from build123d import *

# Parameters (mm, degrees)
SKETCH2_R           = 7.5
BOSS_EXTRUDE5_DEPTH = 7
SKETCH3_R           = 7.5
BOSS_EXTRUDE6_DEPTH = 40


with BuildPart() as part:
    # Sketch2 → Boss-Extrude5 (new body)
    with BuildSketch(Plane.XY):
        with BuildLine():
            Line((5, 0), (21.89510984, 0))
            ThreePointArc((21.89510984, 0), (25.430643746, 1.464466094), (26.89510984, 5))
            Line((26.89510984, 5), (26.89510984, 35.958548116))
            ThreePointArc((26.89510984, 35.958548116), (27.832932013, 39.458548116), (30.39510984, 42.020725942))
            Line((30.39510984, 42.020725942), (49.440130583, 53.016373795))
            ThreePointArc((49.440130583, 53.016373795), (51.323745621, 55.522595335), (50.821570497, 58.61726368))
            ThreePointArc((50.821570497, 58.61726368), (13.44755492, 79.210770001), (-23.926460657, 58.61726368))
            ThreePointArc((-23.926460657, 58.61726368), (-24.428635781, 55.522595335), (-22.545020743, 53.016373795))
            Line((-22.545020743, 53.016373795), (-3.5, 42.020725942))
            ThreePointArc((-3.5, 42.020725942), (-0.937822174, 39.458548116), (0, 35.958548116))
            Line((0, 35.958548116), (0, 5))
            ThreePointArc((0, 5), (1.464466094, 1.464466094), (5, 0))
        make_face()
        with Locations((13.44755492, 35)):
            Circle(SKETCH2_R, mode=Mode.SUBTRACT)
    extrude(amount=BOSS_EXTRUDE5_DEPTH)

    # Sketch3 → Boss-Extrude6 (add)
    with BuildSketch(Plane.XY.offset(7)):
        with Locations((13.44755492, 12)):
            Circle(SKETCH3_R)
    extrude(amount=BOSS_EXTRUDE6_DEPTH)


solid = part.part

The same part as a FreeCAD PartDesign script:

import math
import FreeCAD as App
import Part
import Sketcher
Q = App.Units.Quantity

doc = App.newDocument("Part")
body = doc.addObject("PartDesign::Body", "Body")

# Sketch on XY plane
sketch1 = body.newObject("Sketcher::SketchObject", "Sketch")
sketch1.AttachmentSupport = (doc.getObject("XY_Plane"), [""])
sketch1.MapMode = "FlatFace"
sketch1.addGeometry([
    Part.LineSegment(App.Vector(5, 0, 0), App.Vector(21.9, 0, 0)),  # 0
    Part.ArcOfCircle(Part.Circle(App.Vector(21.9, 5, 0), App.Vector(0, 0, 1), 5), math.radians(-90), math.radians(0)),  # 1
    Part.LineSegment(App.Vector(26.9, 5, 0), App.Vector(26.9, 36, 0)),  # 2
    Part.ArcOfCircle(Part.Circle(App.Vector(33.9, 36, 0), App.Vector(0, 0, 1), 7), math.radians(120), math.radians(180)),  # 3
    Part.LineSegment(App.Vector(30.4, 42, 0), App.Vector(49.4, 53, 0)),  # 4
    Part.ArcOfCircle(Part.Circle(App.Vector(47.4, 56.5, 0), App.Vector(0, 0, 1), 4), math.radians(-60), math.radians(32)),  # 5
    Part.ArcOfCircle(Part.Circle(App.Vector(13.4, 35, 0), App.Vector(0, 0, 1), 44.2), math.radians(32), math.radians(148)),  # 6
    Part.ArcOfCircle(Part.Circle(App.Vector(-20.5, 56.5, 0), App.Vector(0, 0, 1), 4), math.radians(148), math.radians(240)),  # 7
    Part.LineSegment(App.Vector(-22.5, 53, 0), App.Vector(-3.5, 42, 0)),  # 8
    Part.ArcOfCircle(Part.Circle(App.Vector(-7, 36, 0), App.Vector(0, 0, 1), 7), math.radians(0), math.radians(60)),  # 9
    Part.LineSegment(App.Vector(0, 36, 0), App.Vector(0, 5, 0)),  # 10
    Part.ArcOfCircle(Part.Circle(App.Vector(5, 5, 0), App.Vector(0, 0, 1), 5), math.radians(180), math.radians(270)),  # 11
    Part.Circle(App.Vector(13.4, 35, 0), App.Vector(0, 0, 1), 7.5),  # 12
], False)
sketch1.addConstraint([
    Sketcher.Constraint("Tangent", 0, 2, 1, 1),
    Sketcher.Constraint("Tangent", 1, 2, 2, 1),
    Sketcher.Constraint("Tangent", 2, 2, 3, 2),
    Sketcher.Constraint("Tangent", 3, 1, 4, 1),
    Sketcher.Constraint("Tangent", 4, 2, 5, 1),
    Sketcher.Constraint("Tangent", 5, 2, 6, 1),
    Sketcher.Constraint("Tangent", 6, 2, 7, 1),
    Sketcher.Constraint("Tangent", 7, 2, 8, 1),
    Sketcher.Constraint("Tangent", 8, 2, 9, 2),
    Sketcher.Constraint("Tangent", 9, 1, 10, 1),
    Sketcher.Constraint("Tangent", 10, 2, 11, 1),
    Sketcher.Constraint("Tangent", 11, 2, 0, 1),
    Sketcher.Constraint("Horizontal", 0),
    Sketcher.Constraint("Vertical", 2),
    Sketcher.Constraint("Vertical", 10),
    Sketcher.Constraint("Coincident", 12, 3, 6, 3),
    Sketcher.Constraint("Equal", 5, 7),
    Sketcher.Constraint("Equal", 3, 9),
    Sketcher.Constraint("Equal", 1, 11),
    Sketcher.Constraint("PointOnObject", 0, 2, -1),
    Sketcher.Constraint("PointOnObject", 9, 1, -2),
    Sketcher.Constraint("Horizontal", 5, 3, 7, 3),
    Sketcher.Constraint("Horizontal", 3, 3, 9, 3),
    Sketcher.Constraint("Horizontal", 4, 2, 7, 2),
    Sketcher.Constraint("Diameter", 12, Q("15 mm")),
    Sketcher.Constraint("Radius", 1, Q("5 mm")),
    Sketcher.Constraint("Radius", 3, Q("7 mm")),
    Sketcher.Constraint("Radius", 5, Q("4 mm")),
    Sketcher.Constraint("Angle", 4, Q("30 deg")),
    Sketcher.Constraint("DistanceY", -1, 1, 6, 3, Q("35 mm")),
    Sketcher.Constraint("Radius", 6, Q("44.21077 mm")),
    Sketcher.Constraint("DistanceX", 0, 1, 0, 2, Q("16.89511 mm")),
    Sketcher.Constraint("DistanceY", 2, 1, 2, 2, Q("30.958548 mm")),
])
pad1 = body.newObject("PartDesign::Pad", "Pad")
pad1.Profile = sketch1
pad1.Length = 7

# Sketch on XY plane
sketch2 = body.newObject("Sketcher::SketchObject", "Sketch001")
sketch2.AttachmentSupport = (doc.getObject("XY_Plane"), [""])
sketch2.MapMode = "FlatFace"
sketch2.AttachmentOffset = App.Placement(App.Vector(0, 0, 7), App.Rotation())
sketch2.addGeometry(Part.Circle(App.Vector(13, 12, 0), App.Vector(0, 0, 1), 8), False)
sketch2.addConstraint([
    Sketcher.Constraint("Diameter", 0, Q("15 mm")),
    Sketcher.Constraint("DistanceY", -1, 1, 0, 3, Q("12 mm")),
    Sketcher.Constraint("DistanceX", -1, 1, 0, 3, Q("13.447555 mm")),
])
pad2 = body.newObject("PartDesign::Pad", "Pad001")
pad2.Profile = sketch2
pad2.Length = 40

doc.recompute()
